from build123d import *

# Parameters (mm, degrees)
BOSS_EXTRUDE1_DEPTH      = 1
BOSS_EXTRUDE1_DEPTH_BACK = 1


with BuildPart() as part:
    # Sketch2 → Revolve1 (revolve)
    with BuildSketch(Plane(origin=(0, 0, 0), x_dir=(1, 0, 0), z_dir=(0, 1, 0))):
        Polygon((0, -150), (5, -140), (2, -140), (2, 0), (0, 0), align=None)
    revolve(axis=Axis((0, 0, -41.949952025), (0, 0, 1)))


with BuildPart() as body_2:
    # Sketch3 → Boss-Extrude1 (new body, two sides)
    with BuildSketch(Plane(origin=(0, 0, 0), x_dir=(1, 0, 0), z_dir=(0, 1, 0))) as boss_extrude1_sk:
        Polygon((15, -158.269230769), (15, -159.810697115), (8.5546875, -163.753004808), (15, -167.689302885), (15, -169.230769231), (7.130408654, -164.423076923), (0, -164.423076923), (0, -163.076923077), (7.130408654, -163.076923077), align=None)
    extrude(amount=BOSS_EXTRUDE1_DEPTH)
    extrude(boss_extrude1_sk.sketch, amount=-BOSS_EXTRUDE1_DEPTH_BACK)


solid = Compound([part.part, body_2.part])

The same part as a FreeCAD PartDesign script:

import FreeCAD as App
import Part
import Sketcher

V = App.Vector


def add_polygon(sketch, points):
    """Adds a closed chain of lines whose ends are joined by coincident constraints."""
    first, n = sketch.GeometryCount, len(points)
    for a, b in zip(points, points[1:] + points[:1]):
        sketch.addGeometry(Part.LineSegment(App.Vector(*a, 0), App.Vector(*b, 0)), False)
    for i in range(n):
        sketch.addConstraint(Sketcher.Constraint("Coincident", first + i, 2, first + (i + 1) % n, 1))

doc = App.newDocument("Part")
body = doc.addObject("PartDesign::Body", "Body")

# Sketch on XZ plane
sketch1 = body.newObject("Sketcher::SketchObject", "Sketch")
sketch1.AttachmentSupport = (doc.getObject("XZ_Plane"), [""])
sketch1.MapMode = "FlatFace"
add_polygon(sketch1, [(0, 150), (5, 140), (2, 140), (2, 0), (0, 0)])  # lines 0-4
sketch1.addConstraint([
    Sketcher.Constraint("Horizontal", 1),
    Sketcher.Constraint("Vertical", 2),
    Sketcher.Constraint("Horizontal", 3),
    Sketcher.Constraint("Vertical", 4),
    Sketcher.Constraint("Coincident", 3, 2, -1, 1),
    Sketcher.Constraint("DistanceX", 1, 2, 1, 1, 3.0),
    Sketcher.Constraint("DistanceX", 3, 2, 3, 1, 2.0),
    Sketcher.Constraint("DistanceY", 2, 2, 2, 1, 140.0),
    Sketcher.Constraint("DistanceY", 4, 1, 4, 2, 150.0),
])
revolution = body.newObject("PartDesign::Revolution", "Revolution")
revolution.Profile = sketch1
revolution.ReferenceAxis = (sketch1, ["V_Axis"])
revolution.Angle = 360
body2 = doc.addObject("PartDesign::Body", "Body001")

# Sketch on XZ plane
sketch2 = body2.newObject("Sketcher::SketchObject", "Sketch001")
sketch2.AttachmentSupport = (doc.getObject("XZ_Plane001"), [""])
sketch2.MapMode = "FlatFace"
add_polygon(sketch2, [(15, 159.8), (15, 158.3), (7.1, 163.1), (0, 163.1), (0, 164.4), (7.1, 164.4), (15, 169.2), (15, 167.7), (8.6, 163.8)])  # lines 0-8
sketch2.addConstraint([
    Sketcher.Constraint("Vertical", 0),
    Sketcher.Constraint("Horizontal", 2),
    Sketcher.Constraint("Vertical", 3),
    Sketcher.Constraint("Horizontal", 4),
    Sketcher.Constraint("Vertical", 6),
    Sketcher.Constraint("PointOnObject", 2, 2, -2),
    Sketcher.Constraint("Vertical", 1, 2, 4, 2),
    Sketcher.Constraint("Vertical", 0, 2, 5, 2),
    Sketcher.Constraint("Equal", 0, 6),
    Sketcher.Constraint("Equal", 1, 5),
    Sketcher.Constraint("DistanceX", -1, 1, 0, 2, 15.0),
    Sketcher.Constraint("DistanceX", 2, 2, 2, 1, 7.130409),
    Sketcher.Constraint("DistanceY", 7, 2, 6, 2, 3.936298),
    Sketcher.Constraint("Distance", 1, 9.221951),
    Sketcher.Constraint("Distance", 7, 7.552251),
    Sketcher.Constraint("DistanceY", 0, 2, 0, 1, 1.541466),
    Sketcher.Constraint("DistanceY", 3, 1, 3, 2, 1.346154),
    Sketcher.Constraint("DistanceY", -1, 1, 0, 2, 158.269231),
])
pad1 = body2.newObject("PartDesign::Pad", "Pad")
pad1.Profile = sketch2
pad1.Type = "TwoLengths"
pad1.Length = 1
pad1.Length2 = 1
pad1.Reversed = True

doc.recompute()
